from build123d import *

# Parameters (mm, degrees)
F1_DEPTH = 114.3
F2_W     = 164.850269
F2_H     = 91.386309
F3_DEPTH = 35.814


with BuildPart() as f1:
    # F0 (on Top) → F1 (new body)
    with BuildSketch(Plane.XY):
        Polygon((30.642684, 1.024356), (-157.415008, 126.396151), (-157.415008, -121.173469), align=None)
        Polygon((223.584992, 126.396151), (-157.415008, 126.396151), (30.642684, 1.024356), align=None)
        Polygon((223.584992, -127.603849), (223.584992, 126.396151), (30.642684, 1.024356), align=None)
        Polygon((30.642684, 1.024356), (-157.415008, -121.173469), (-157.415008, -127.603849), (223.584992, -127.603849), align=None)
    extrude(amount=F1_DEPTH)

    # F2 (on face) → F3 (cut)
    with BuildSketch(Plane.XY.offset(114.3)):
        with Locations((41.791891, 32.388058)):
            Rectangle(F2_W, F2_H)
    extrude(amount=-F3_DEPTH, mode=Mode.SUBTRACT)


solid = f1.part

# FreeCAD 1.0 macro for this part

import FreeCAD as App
import Part
import Sketcher
from FreeCAD import Vector
Q = App.Units.Quantity

doc = App.newDocument("Part")
body = doc.addObject("PartDesign::Body", "Body")

# Sketch on XY plane
sketch1 = doc.addObject("Sketcher::SketchObject", "Sketch")
body.addObject(sketch1)
sketch1.AttachmentSupport = (doc.XY_Plane, [""])
sketch1.MapMode = "FlatFace"
sketch1.addGeometry(Part.LineSegment(Vector(-157.415008, 126.396151, 0), Vector(-157.415008, -127.603849, 0)), False)
sketch1.addGeometry(Part.LineSegment(Vector(-157.415008, -127.603849, 0), Vector(223.584992, -127.603849, 0)), False)
sketch1.addGeometry(Part.LineSegment(Vector(223.584992, -127.603849, 0), Vector(223.584992, 126.396151, 0)), False)
sketch1.addGeometry(Part.LineSegment(Vector(223.584992, 126.396151, 0), Vector(-157.415008, 126.396151, 0)), False)
sketch1.addConstraint(Sketcher.Constraint("Coincident", 0, 2, 1, 1))
sketch1.addConstraint(Sketcher.Constraint("Coincident", 1, 2, 2, 1))
sketch1.addConstraint(Sketcher.Constraint("Coincident", 2, 2, 3, 1))
sketch1.addConstraint(Sketcher.Constraint("Coincident", 3, 2, 0, 1))
sketch1.addConstraint(Sketcher.Constraint("Vertical", 0))
sketch1.addConstraint(Sketcher.Constraint("Horizontal", 1))
sketch1.addConstraint(Sketcher.Constraint("Vertical", 2))
sketch1.addConstraint(Sketcher.Constraint("Horizontal", 3))
sketch1.addConstraint(Sketcher.Constraint("DistanceX", 1, 1, 1, 2, Q("15 in")))
sketch1.addConstraint(Sketcher.Constraint("DistanceY", 0, 2, 0, 1, Q("10 in")))
sketch1.addConstraint(Sketcher.Constraint("DistanceX", 0, 2, -1, 1, 157.415008))
sketch1.addConstraint(Sketcher.Constraint("DistanceY", 0, 2, -1, 1, 127.603849))
pad1 = doc.addObject("PartDesign::Pad", "Pad")
body.addObject(pad1)
pad1.Profile = sketch1
pad1.Length = Q("4.5 in")

# Sketch on XY plane
sketch2 = doc.addObject("Sketcher::SketchObject", "Sketch001")
body.addObject(sketch2)
sketch2.AttachmentSupport = (doc.XY_Plane, [""])
sketch2.MapMode = "FlatFace"
sketch2.AttachmentOffset = App.Placement(Vector(0, 0, 4.5 * 25.4), App.Rotation())
sketch2.addGeometry(Part.LineSegment(Vector(-40.633243, 78.081213, 0), Vector(-40.633243, -13.305096, 0)), False)
sketch2.addGeometry(Part.LineSegment(Vector(-40.633243, -13.305096, 0), Vector(124.217026, -13.305096, 0)), False)
sketch2.addGeometry(Part.LineSegment(Vector(124.217026, -13.305096, 0), Vector(124.217026, 78.081213, 0)), False)
sketch2.addGeometry(Part.LineSegment(Vector(124.217026, 78.081213, 0), Vector(-40.633243, 78.081213, 0)), False)
sketch2.addConstraint(Sketcher.Constraint("Coincident", 0, 2, 1, 1))
sketch2.addConstraint(Sketcher.Constraint("Coincident", 1, 2, 2, 1))
sketch2.addConstraint(Sketcher.Constraint("Coincident", 2, 2, 3, 1))
sketch2.addConstraint(Sketcher.Constraint("Coincident", 3, 2, 0, 1))
sketch2.addConstraint(Sketcher.Constraint("Vertical", 0))
sketch2.addConstraint(Sketcher.Constraint("Horizontal", 1))
sketch2.addConstraint(Sketcher.Constraint("Vertical", 2))
sketch2.addConstraint(Sketcher.Constraint("Horizontal", 3))
sketch2.addConstraint(Sketcher.Constraint("DistanceX", 1, 1, 1, 2, 164.850269))
sketch2.addConstraint(Sketcher.Constraint("DistanceY", 0, 2, 0, 1, 91.386309))
sketch2.addConstraint(Sketcher.Constraint("DistanceX", 0, 2, -1, 1, 40.633243))
sketch2.addConstraint(Sketcher.Constraint("DistanceY", 0, 2, -1, 1, 13.305096))
pocket1 = doc.addObject("PartDesign::Pocket", "Pocket")
body.addObject(pocket1)
pocket1.Profile = sketch2
pocket1.Length = Q("1.41 in")

doc.recompute()
